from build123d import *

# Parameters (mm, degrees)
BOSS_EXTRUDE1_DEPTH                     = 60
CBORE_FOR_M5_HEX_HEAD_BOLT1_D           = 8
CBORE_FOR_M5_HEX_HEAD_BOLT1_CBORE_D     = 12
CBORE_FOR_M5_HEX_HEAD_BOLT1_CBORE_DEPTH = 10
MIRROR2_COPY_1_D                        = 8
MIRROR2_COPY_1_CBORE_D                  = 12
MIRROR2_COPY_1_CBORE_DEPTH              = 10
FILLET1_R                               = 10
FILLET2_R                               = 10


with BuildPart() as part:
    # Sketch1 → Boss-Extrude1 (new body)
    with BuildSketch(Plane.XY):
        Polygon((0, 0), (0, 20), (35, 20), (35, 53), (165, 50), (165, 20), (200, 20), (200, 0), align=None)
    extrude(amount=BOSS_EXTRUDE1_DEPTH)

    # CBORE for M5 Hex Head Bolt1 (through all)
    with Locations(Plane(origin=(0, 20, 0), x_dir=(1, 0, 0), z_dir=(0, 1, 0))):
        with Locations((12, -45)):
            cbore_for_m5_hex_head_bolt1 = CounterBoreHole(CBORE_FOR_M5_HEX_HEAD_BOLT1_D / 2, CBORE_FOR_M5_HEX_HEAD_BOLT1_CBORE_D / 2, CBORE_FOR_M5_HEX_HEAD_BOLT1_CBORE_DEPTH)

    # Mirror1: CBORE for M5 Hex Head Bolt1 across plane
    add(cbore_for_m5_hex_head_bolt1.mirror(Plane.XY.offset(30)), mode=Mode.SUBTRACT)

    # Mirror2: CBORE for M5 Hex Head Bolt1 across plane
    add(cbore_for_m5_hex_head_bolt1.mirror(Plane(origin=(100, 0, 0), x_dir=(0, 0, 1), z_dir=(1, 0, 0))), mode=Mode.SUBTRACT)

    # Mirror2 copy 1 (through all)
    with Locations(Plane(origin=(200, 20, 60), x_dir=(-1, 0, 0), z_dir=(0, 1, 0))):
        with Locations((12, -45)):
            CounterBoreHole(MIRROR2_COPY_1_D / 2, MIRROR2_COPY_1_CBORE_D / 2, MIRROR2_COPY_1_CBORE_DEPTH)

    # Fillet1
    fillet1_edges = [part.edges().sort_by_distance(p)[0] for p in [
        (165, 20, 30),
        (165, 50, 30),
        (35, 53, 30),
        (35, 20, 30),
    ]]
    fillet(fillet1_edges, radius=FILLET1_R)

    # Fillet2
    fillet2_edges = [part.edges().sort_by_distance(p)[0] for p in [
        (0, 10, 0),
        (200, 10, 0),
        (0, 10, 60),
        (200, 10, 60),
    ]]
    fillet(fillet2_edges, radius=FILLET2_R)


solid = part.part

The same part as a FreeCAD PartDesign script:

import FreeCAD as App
import Part
import Sketcher


def edges_at(feature, points):
    """Names of the edges that pass closest to the given points."""
    edges = feature.Shape.Edges
    near = lambda p: min(range(len(edges)), key=lambda i: edges[i].distToShape(Part.Vertex(*p))[0])
    return sorted({f"Edge{near(p) + 1}" for p in points})

doc = App.newDocument("Part")
body = doc.addObject("PartDesign::Body", "Body")

# Sketch on XY plane
sketch1 = body.newObject("Sketcher::SketchObject", "Sketch")
sketch1.AttachmentSupport = (doc.getObject("XY_Plane"), [""])
sketch1.MapMode = "FlatFace"
sketch1.addGeometry(Part.LineSegment(App.Vector(0, 20, 0), App.Vector(0, 0, 0)), False)
sketch1.addGeometry(Part.LineSegment(App.Vector(0, 0, 0), App.Vector(200, 0, 0)), False)
sketch1.addGeometry(Part.LineSegment(App.Vector(200, 0, 0), App.Vector(200, 20, 0)), False)
sketch1.addGeometry(Part.LineSegment(App.Vector(200, 20, 0), App.Vector(165, 20, 0)), False)
sketch1.addGeometry(Part.LineSegment(App.Vector(165, 20, 0), App.Vector(165, 50, 0)), False)
sketch1.addGeometry(Part.LineSegment(App.Vector(165, 50, 0), App.Vector(35, 53, 0)), False)
sketch1.addGeometry(Part.LineSegment(App.Vector(35, 53, 0), App.Vector(35, 20, 0)), False)
sketch1.addGeometry(Part.LineSegment(App.Vector(35, 20, 0), App.Vector(0, 20, 0)), False)
sketch1.addConstraint(Sketcher.Constraint("Coincident", 0, 2, 1, 1))
sketch1.addConstraint(Sketcher.Constraint("Coincident", 1, 2, 2, 1))
sketch1.addConstraint(Sketcher.Constraint("Coincident", 2, 2, 3, 1))
sketch1.addConstraint(Sketcher.Constraint("Coincident", 3, 2, 4, 1))
sketch1.addConstraint(Sketcher.Constraint("Coincident", 4, 2, 5, 1))
sketch1.addConstraint(Sketcher.Constraint("Coincident", 5, 2, 6, 1))
sketch1.addConstraint(Sketcher.Constraint("Coincident", 6, 2, 7, 1))
sketch1.addConstraint(Sketcher.Constraint("Coincident", 7, 2, 0, 1))
sketch1.addConstraint(Sketcher.Constraint("Vertical", 0))
sketch1.addConstraint(Sketcher.Constraint("Horizontal", 1))
sketch1.addConstraint(Sketcher.Constraint("Vertical", 2))
sketch1.addConstraint(Sketcher.Constraint("Horizontal", 3))
sketch1.addConstraint(Sketcher.Constraint("Vertical", 4))
sketch1.addConstraint(Sketcher.Constraint("Vertical", 6))
sketch1.addConstraint(Sketcher.Constraint("Horizontal", 7))
sketch1.addConstraint(Sketcher.Constraint("Coincident", 0, 2, -1, 1))
sketch1.addConstraint(Sketcher.Constraint("Horizontal", 3, 2, 6, 2))
sketch1.addConstraint(Sketcher.Constraint("Equal", 3, 7))
sketch1.addConstraint(Sketcher.Constraint("DistanceX", 1, 1, 1, 2, 200.0))
sketch1.addConstraint(Sketcher.Constraint("DistanceX", 3, 2, 3, 1, 35.0))
sketch1.addConstraint(Sketcher.Constraint("DistanceY", 0, 2, 0, 1, 20.0))
sketch1.addConstraint(Sketcher.Constraint("DistanceY", 4, 1, 4, 2, 30.0))
sketch1.addConstraint(Sketcher.Constraint("DistanceY", 6, 2, 6, 1, 33.0))
pad1 = body.newObject("PartDesign::Pad", "Pad")
pad1.Profile = sketch1
pad1.Length = 60

# Sketch on XZ plane
sketch2 = body.newObject("Sketcher::SketchObject", "Sketch001")
sketch2.AttachmentSupport = (doc.getObject("XZ_Plane"), [""])
sketch2.MapMode = "FlatFace"
sketch2.AttachmentOffset = App.Placement(App.Vector(0, 0, -20), App.Rotation())
sketch2.addGeometry(Part.Circle(App.Vector(12, 45, 0), App.Vector(0, 0, 1), 4), False)
sketch2.addConstraint(Sketcher.Constraint("Diameter", 0, 8.0))
sketch2.addConstraint(Sketcher.Constraint("DistanceX", -1, 1, 0, 3, 12.0))
sketch2.addConstraint(Sketcher.Constraint("DistanceY", -1, 1, 0, 3, 45.0))
doc.recompute()
hole = body.newObject("PartDesign::Hole", "Hole")
hole.Profile = sketch2
hole.ThreadType = "None"
hole.Diameter = 8
hole.DepthType = "ThroughAll"
hole.HoleCutType = "Counterbore"
hole.HoleCutDiameter = 12
hole.HoleCutDepth = 10
hole.Reversed = True
doc.recompute()

datumplane = body.newObject("PartDesign::Plane", "DatumPlane")
datumplane.AttachmentSupport = (doc.getObject("XY_Plane"), [""])
datumplane.MapMode = "FlatFace"
datumplane.AttachmentOffset = App.Placement(App.Vector(0, 0, 30), App.Rotation())
mirrored = body.newObject("PartDesign::Mirrored", "Mirrored")
mirrored.Originals = [hole]
mirrored.MirrorPlane = (datumplane, [""])
body.Tip = mirrored
doc.recompute()

datumplane2 = body.newObject("PartDesign::Plane", "DatumPlane001")
datumplane2.AttachmentSupport = (doc.getObject("YZ_Plane"), [""])
datumplane2.MapMode = "FlatFace"
datumplane2.AttachmentOffset = App.Placement(App.Vector(0, 0, 100), App.Rotation())
mirrored2 = body.newObject("PartDesign::Mirrored", "Mirrored001")
mirrored2.Originals = [hole]
mirrored2.MirrorPlane = (datumplane2, [""])
body.Tip = mirrored2

# Sketch on XZ plane
sketch3 = body.newObject("Sketcher::SketchObject", "Sketch002")
sketch3.AttachmentSupport = (doc.getObject("XZ_Plane"), [""])
sketch3.MapMode = "FlatFace"
sketch3.AttachmentOffset = App.Placement(App.Vector(0, 0, -20), App.Rotation())
sketch3.addGeometry(Part.Circle(App.Vector(188, 15, 0), App.Vector(0, 0, 1), 4), False)
sketch3.addConstraint(Sketcher.Constraint("Diameter", 0, 8.0))
sketch3.addConstraint(Sketcher.Constraint("DistanceX", -1, 1, 0, 3, 188.0))
sketch3.addConstraint(Sketcher.Constraint("DistanceY", -1, 1, 0, 3, 15.0))
doc.recompute()
hole2 = body.newObject("PartDesign::Hole", "Hole001")
hole2.Profile = sketch3
hole2.ThreadType = "None"
hole2.Diameter = 8
hole2.DepthType = "ThroughAll"
hole2.HoleCutType = "Counterbore"
hole2.HoleCutDiameter = 12
hole2.HoleCutDepth = 10
hole2.Reversed = True
doc.recompute()

fillet = body.newObject("PartDesign::Fillet", "Fillet")
fillet.Base = (hole2, edges_at(hole2, [
    (165, 20, 30),
    (165, 50, 30),
    (35, 53, 30),
    (35, 20, 30),
]))
fillet.Radius = 10
doc.recompute()

fillet2 = body.newObject("PartDesign::Fillet", "Fillet001")
fillet2.Base = (fillet, edges_at(fillet, [
    (0, 10, 0),
    (200, 10, 0),
    (0, 10, 60),
    (200, 10, 60),
]))
fillet2.Radius = 10

doc.recompute()
